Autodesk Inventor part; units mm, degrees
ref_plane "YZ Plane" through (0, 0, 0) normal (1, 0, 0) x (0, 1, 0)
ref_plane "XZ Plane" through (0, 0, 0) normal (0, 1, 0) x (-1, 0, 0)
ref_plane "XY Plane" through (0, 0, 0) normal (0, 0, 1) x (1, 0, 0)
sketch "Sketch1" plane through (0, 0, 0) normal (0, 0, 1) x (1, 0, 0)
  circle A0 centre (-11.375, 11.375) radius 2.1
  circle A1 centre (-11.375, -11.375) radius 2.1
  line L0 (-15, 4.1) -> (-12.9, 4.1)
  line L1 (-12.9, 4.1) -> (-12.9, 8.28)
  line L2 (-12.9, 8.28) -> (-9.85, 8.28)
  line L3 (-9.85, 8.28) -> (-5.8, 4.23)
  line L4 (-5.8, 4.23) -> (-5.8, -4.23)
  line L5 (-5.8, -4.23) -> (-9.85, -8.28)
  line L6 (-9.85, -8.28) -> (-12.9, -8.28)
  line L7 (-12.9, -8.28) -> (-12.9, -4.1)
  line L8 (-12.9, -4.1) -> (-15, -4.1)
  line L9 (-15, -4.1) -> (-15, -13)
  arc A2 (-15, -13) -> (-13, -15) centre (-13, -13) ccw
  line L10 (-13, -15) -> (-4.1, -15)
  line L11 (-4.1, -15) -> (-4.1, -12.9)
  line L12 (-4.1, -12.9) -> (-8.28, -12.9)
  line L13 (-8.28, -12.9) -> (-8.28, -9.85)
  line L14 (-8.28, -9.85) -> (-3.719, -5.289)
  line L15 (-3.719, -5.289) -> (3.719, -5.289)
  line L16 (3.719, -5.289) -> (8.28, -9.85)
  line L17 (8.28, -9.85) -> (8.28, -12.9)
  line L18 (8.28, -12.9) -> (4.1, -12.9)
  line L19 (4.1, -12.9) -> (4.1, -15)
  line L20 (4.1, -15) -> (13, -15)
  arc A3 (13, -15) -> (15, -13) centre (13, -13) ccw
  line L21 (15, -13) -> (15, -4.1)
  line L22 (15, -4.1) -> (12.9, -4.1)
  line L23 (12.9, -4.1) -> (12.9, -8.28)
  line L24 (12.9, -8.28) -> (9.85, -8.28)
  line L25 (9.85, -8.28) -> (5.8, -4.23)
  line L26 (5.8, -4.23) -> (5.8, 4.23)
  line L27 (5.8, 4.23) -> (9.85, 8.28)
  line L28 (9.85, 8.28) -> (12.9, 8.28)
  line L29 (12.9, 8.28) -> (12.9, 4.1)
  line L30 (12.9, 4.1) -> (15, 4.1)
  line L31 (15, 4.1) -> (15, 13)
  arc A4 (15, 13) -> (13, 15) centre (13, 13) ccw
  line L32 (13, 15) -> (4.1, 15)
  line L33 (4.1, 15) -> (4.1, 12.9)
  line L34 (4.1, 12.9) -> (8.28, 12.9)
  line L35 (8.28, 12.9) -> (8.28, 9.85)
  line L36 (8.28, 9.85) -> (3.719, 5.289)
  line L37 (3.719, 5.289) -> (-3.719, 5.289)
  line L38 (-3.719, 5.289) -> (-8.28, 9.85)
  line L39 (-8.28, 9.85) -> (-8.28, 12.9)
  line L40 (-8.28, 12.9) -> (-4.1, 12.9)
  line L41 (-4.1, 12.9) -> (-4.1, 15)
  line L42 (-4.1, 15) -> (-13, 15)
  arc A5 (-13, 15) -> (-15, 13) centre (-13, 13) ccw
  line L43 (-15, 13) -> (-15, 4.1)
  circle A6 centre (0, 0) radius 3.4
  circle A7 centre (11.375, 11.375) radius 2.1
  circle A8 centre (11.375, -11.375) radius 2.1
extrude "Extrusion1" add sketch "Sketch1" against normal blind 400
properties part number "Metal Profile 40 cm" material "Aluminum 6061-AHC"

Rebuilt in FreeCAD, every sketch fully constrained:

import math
import FreeCAD as App
import Part
import Sketcher
Q = App.Units.Quantity

doc = App.newDocument("Part")
body = doc.addObject("PartDesign::Body", "Body")

# Sketch on XY plane
sketch1 = doc.addObject("Sketcher::SketchObject", "Sketch")
body.addObject(sketch1)
sketch1.AttachmentSupport = (doc.XY_Plane, [""])
sketch1.MapMode = "FlatFace"
sketch1.addGeometry(Part.LineSegment(App.Vector(-15, 13, 0), App.Vector(-15, 4.1, 0)), False)
sketch1.addGeometry(Part.LineSegment(App.Vector(-15, 4.1, 0), App.Vector(-12.9, 4.1, 0)), False)
sketch1.addGeometry(Part.LineSegment(App.Vector(-12.9, 4.1, 0), App.Vector(-12.9, 8.28, 0)), False)
sketch1.addGeometry(Part.LineSegment(App.Vector(-12.9, 8.28, 0), App.Vector(-9.85, 8.28, 0)), False)
sketch1.addGeometry(Part.LineSegment(App.Vector(-9.85, 8.28, 0), App.Vector(-5.8, 4.23, 0)), False)
sketch1.addGeometry(Part.LineSegment(App.Vector(-5.8, 4.23, 0), App.Vector(-5.8, -4.23, 0)), False)
sketch1.addGeometry(Part.LineSegment(App.Vector(-5.8, -4.23, 0), App.Vector(-9.85, -8.28, 0)), False)
sketch1.addGeometry(Part.LineSegment(App.Vector(-9.85, -8.28, 0), App.Vector(-12.9, -8.28, 0)), False)
sketch1.addGeometry(Part.LineSegment(App.Vector(-12.9, -8.28, 0), App.Vector(-12.9, -4.1, 0)), False)
sketch1.addGeometry(Part.LineSegment(App.Vector(-12.9, -4.1, 0), App.Vector(-15, -4.1, 0)), False)
sketch1.addGeometry(Part.LineSegment(App.Vector(-15, -4.1, 0), App.Vector(-15, -13, 0)), False)
sketch1.addGeometry(Part.ArcOfCircle(Part.Circle(App.Vector(-13, -13, 0), App.Vector(0, 0, 1), 2), math.radians(180), math.radians(270)), False)
sketch1.addGeometry(Part.LineSegment(App.Vector(-13, -15, 0), App.Vector(-4.1, -15, 0)), False)
sketch1.addGeometry(Part.LineSegment(App.Vector(-4.1, -15, 0), App.Vector(-4.1, -12.9, 0)), False)
sketch1.addGeometry(Part.LineSegment(App.Vector(-4.1, -12.9, 0), App.Vector(-8.28, -12.9, 0)), False)
sketch1.addGeometry(Part.LineSegment(App.Vector(-8.28, -12.9, 0), App.Vector(-8.28, -9.85, 0)), False)
sketch1.addGeometry(Part.LineSegment(App.Vector(-8.28, -9.85, 0), App.Vector(-3.719, -5.289, 0)), False)
sketch1.addGeometry(Part.LineSegment(App.Vector(-3.719, -5.289, 0), App.Vector(3.719, -5.289, 0)), False)
sketch1.addGeometry(Part.LineSegment(App.Vector(3.719, -5.289, 0), App.Vector(8.28, -9.85, 0)), False)
sketch1.addGeometry(Part.LineSegment(App.Vector(8.28, -9.85, 0), App.Vector(8.28, -12.9, 0)), False)
sketch1.addGeometry(Part.LineSegment(App.Vector(8.28, -12.9, 0), App.Vector(4.1, -12.9, 0)), False)
sketch1.addGeometry(Part.LineSegment(App.Vector(4.1, -12.9, 0), App.Vector(4.1, -15, 0)), False)
sketch1.addGeometry(Part.LineSegment(App.Vector(4.1, -15, 0), App.Vector(13, -15, 0)), False)
sketch1.addGeometry(Part.ArcOfCircle(Part.Circle(App.Vector(13, -13, 0), App.Vector(0, 0, 1), 2), math.radians(-90), math.radians(0)), False)
sketch1.addGeometry(Part.LineSegment(App.Vector(15, -13, 0), App.Vector(15, -4.1, 0)), False)
sketch1.addGeometry(Part.LineSegment(App.Vector(15, -4.1, 0), App.Vector(12.9, -4.1, 0)), False)
sketch1.addGeometry(Part.LineSegment(App.Vector(12.9, -4.1, 0), App.Vector(12.9, -8.28, 0)), False)
sketch1.addGeometry(Part.LineSegment(App.Vector(12.9, -8.28, 0), App.Vector(9.85, -8.28, 0)), False)
sketch1.addGeometry(Part.LineSegment(App.Vector(9.85, -8.28, 0), App.Vector(5.8, -4.23, 0)), False)
sketch1.addGeometry(Part.LineSegment(App.Vector(5.8, -4.23, 0), App.Vector(5.8, 4.23, 0)), False)
sketch1.addGeometry(Part.LineSegment(App.Vector(5.8, 4.23, 0), App.Vector(9.85, 8.28, 0)), False)
sketch1.addGeometry(Part.LineSegment(App.Vector(9.85, 8.28, 0), App.Vector(12.9, 8.28, 0)), False)
sketch1.addGeometry(Part.LineSegment(App.Vector(12.9, 8.28, 0), App.Vector(12.9, 4.1, 0)), False)
sketch1.addGeometry(Part.LineSegment(App.Vector(12.9, 4.1, 0), App.Vector(15, 4.1, 0)), False)
sketch1.addGeometry(Part.LineSegment(App.Vector(15, 4.1, 0), App.Vector(15, 13, 0)), False)
sketch1.addGeometry(Part.ArcOfCircle(Part.Circle(App.Vector(13, 13, 0), App.Vector(0, 0, 1), 2), math.radians(0), math.radians(90)), False)
sketch1.addGeometry(Part.LineSegment(App.Vector(13, 15, 0), App.Vector(4.1, 15, 0)), False)
sketch1.addGeometry(Part.LineSegment(App.Vector(4.1, 15, 0), App.Vector(4.1, 12.9, 0)), False)
sketch1.addGeometry(Part.LineSegment(App.Vector(4.1, 12.9, 0), App.Vector(8.28, 12.9, 0)), False)
sketch1.addGeometry(Part.LineSegment(App.Vector(8.28, 12.9, 0), App.Vector(8.28, 9.85, 0)), False)
sketch1.addGeometry(Part.LineSegment(App.Vector(8.28, 9.85, 0), App.Vector(3.719, 5.289, 0)), False)
sketch1.addGeometry(Part.LineSegment(App.Vector(3.719, 5.289, 0), App.Vector(-3.719, 5.289, 0)), False)
sketch1.addGeometry(Part.LineSegment(App.Vector(-3.719, 5.289, 0), App.Vector(-8.28, 9.85, 0)), False)
sketch1.addGeometry(Part.LineSegment(App.Vector(-8.28, 9.85, 0), App.Vector(-8.28, 12.9, 0)), False)
sketch1.addGeometry(Part.LineSegment(App.Vector(-8.28, 12.9, 0), App.Vector(-4.1, 12.9, 0)), False)
sketch1.addGeometry(Part.LineSegment(App.Vector(-4.1, 12.9, 0), App.Vector(-4.1, 15, 0)), False)
sketch1.addGeometry(Part.LineSegment(App.Vector(-4.1, 15, 0), App.Vector(-13, 15, 0)), False)
sketch1.addGeometry(Part.ArcOfCircle(Part.Circle(App.Vector(-13, 13, 0), App.Vector(0, 0, 1), 2), math.radians(90), math.radians(180)), False)
sketch1.addGeometry(Part.Circle(App.Vector(-11.375, -11.375, 0), App.Vector(0, 0, 1), 2.1), False)
sketch1.addGeometry(Part.Circle(App.Vector(11.375, -11.375, 0), App.Vector(0, 0, 1), 2.1), False)
sketch1.addGeometry(Part.Circle(App.Vector(-11.375, 11.375, 0), App.Vector(0, 0, 1), 2.1), False)
sketch1.addGeometry(Part.Circle(App.Vector(0, 0, 0), App.Vector(0, 0, 1), 3.4), False)
sketch1.addGeometry(Part.Circle(App.Vector(11.375, 11.375, 0), App.Vector(0, 0, 1), 2.1), False)
sketch1.addConstraint(Sketcher.Constraint("Coincident", 0, 2, 1, 1))
sketch1.addConstraint(Sketcher.Constraint("Coincident", 1, 2, 2, 1))
sketch1.addConstraint(Sketcher.Constraint("Coincident", 2, 2, 3, 1))
sketch1.addConstraint(Sketcher.Constraint("Coincident", 3, 2, 4, 1))
sketch1.addConstraint(Sketcher.Constraint("Coincident", 4, 2, 5, 1))
sketch1.addConstraint(Sketcher.Constraint("Coincident", 5, 2, 6, 1))
sketch1.addConstraint(Sketcher.Constraint("Coincident", 6, 2, 7, 1))
sketch1.addConstraint(Sketcher.Constraint("Coincident", 7, 2, 8, 1))
sketch1.addConstraint(Sketcher.Constraint("Coincident", 8, 2, 9, 1))
sketch1.addConstraint(Sketcher.Constraint("Coincident", 9, 2, 10, 1))
sketch1.addConstraint(Sketcher.Constraint("Tangent", 10, 2, 11, 1))
sketch1.addConstraint(Sketcher.Constraint("Tangent", 11, 2, 12, 1))
sketch1.addConstraint(Sketcher.Constraint("Coincident", 12, 2, 13, 1))
sketch1.addConstraint(Sketcher.Constraint("Coincident", 13, 2, 14, 1))
sketch1.addConstraint(Sketcher.Constraint("Coincident", 14, 2, 15, 1))
sketch1.addConstraint(Sketcher.Constraint("Coincident", 15, 2, 16, 1))
sketch1.addConstraint(Sketcher.Constraint("Coincident", 16, 2, 17, 1))
sketch1.addConstraint(Sketcher.Constraint("Coincident", 17, 2, 18, 1))
sketch1.addConstraint(Sketcher.Constraint("Coincident", 18, 2, 19, 1))
sketch1.addConstraint(Sketcher.Constraint("Coincident", 19, 2, 20, 1))
sketch1.addConstraint(Sketcher.Constraint("Coincident", 20, 2, 21, 1))
sketch1.addConstraint(Sketcher.Constraint("Coincident", 21, 2, 22, 1))
sketch1.addConstraint(Sketcher.Constraint("Tangent", 22, 2, 23, 1))
sketch1.addConstraint(Sketcher.Constraint("Tangent", 23, 2, 24, 1))
sketch1.addConstraint(Sketcher.Constraint("Coincident", 24, 2, 25, 1))
sketch1.addConstraint(Sketcher.Constraint("Coincident", 25, 2, 26, 1))
sketch1.addConstraint(Sketcher.Constraint("Coincident", 26, 2, 27, 1))
sketch1.addConstraint(Sketcher.Constraint("Coincident", 27, 2, 28, 1))
sketch1.addConstraint(Sketcher.Constraint("Coincident", 28, 2, 29, 1))
sketch1.addConstraint(Sketcher.Constraint("Coincident", 29, 2, 30, 1))
sketch1.addConstraint(Sketcher.Constraint("Coincident", 30, 2, 31, 1))
sketch1.addConstraint(Sketcher.Constraint("Coincident", 31, 2, 32, 1))
sketch1.addConstraint(Sketcher.Constraint("Coincident", 32, 2, 33, 1))
sketch1.addConstraint(Sketcher.Constraint("Coincident", 33, 2, 34, 1))
sketch1.addConstraint(Sketcher.Constraint("Tangent", 34, 2, 35, 1))
sketch1.addConstraint(Sketcher.Constraint("Tangent", 35, 2, 36, 1))
sketch1.addConstraint(Sketcher.Constraint("Coincident", 36, 2, 37, 1))
sketch1.addConstraint(Sketcher.Constraint("Coincident", 37, 2, 38, 1))
sketch1.addConstraint(Sketcher.Constraint("Coincident", 38, 2, 39, 1))
sketch1.addConstraint(Sketcher.Constraint("Coincident", 39, 2, 40, 1))
sketch1.addConstraint(Sketcher.Constraint("Coincident", 40, 2, 41, 1))
sketch1.addConstraint(Sketcher.Constraint("Coincident", 41, 2, 42, 1))
sketch1.addConstraint(Sketcher.Constraint("Coincident", 42, 2, 43, 1))
sketch1.addConstraint(Sketcher.Constraint("Coincident", 43, 2, 44, 1))
sketch1.addConstraint(Sketcher.Constraint("Coincident", 44, 2, 45, 1))
sketch1.addConstraint(Sketcher.Constraint("Coincident", 45, 2, 46, 1))
sketch1.addConstraint(Sketcher.Constraint("Tangent", 46, 2, 47, 1))
sketch1.addConstraint(Sketcher.Constraint("Tangent", 47, 2, 0, 1))
sketch1.addConstraint(Sketcher.Constraint("Vertical", 0))
sketch1.addConstraint(Sketcher.Constraint("Horizontal", 1))
sketch1.addConstraint(Sketcher.Constraint("Vertical", 2))
sketch1.addConstraint(Sketcher.Constraint("Horizontal", 3))
sketch1.addConstraint(Sketcher.Constraint("Vertical", 5))
sketch1.addConstraint(Sketcher.Constraint("Horizontal", 7))
sketch1.addConstraint(Sketcher.Constraint("Vertical", 8))
sketch1.addConstraint(Sketcher.Constraint("Horizontal", 9))
sketch1.addConstraint(Sketcher.Constraint("Vertical", 10))
sketch1.addConstraint(Sketcher.Constraint("Horizontal", 12))
sketch1.addConstraint(Sketcher.Constraint("Vertical", 13))
sketch1.addConstraint(Sketcher.Constraint("Horizontal", 14))
sketch1.addConstraint(Sketcher.Constraint("Vertical", 15))
sketch1.addConstraint(Sketcher.Constraint("Horizontal", 17))
sketch1.addConstraint(Sketcher.Constraint("Vertical", 19))
sketch1.addConstraint(Sketcher.Constraint("Horizontal", 20))
sketch1.addConstraint(Sketcher.Constraint("Vertical", 21))
sketch1.addConstraint(Sketcher.Constraint("Horizontal", 22))
sketch1.addConstraint(Sketcher.Constraint("Vertical", 24))
sketch1.addConstraint(Sketcher.Constraint("Horizontal", 25))
sketch1.addConstraint(Sketcher.Constraint("Vertical", 26))
sketch1.addConstraint(Sketcher.Constraint("Horizontal", 27))
sketch1.addConstraint(Sketcher.Constraint("Vertical", 29))
sketch1.addConstraint(Sketcher.Constraint("Horizontal", 31))
sketch1.addConstraint(Sketcher.Constraint("Vertical", 32))
sketch1.addConstraint(Sketcher.Constraint("Horizontal", 33))
sketch1.addConstraint(Sketcher.Constraint("Vertical", 34))
sketch1.addConstraint(Sketcher.Constraint("Horizontal", 36))
sketch1.addConstraint(Sketcher.Constraint("Vertical", 37))
sketch1.addConstraint(Sketcher.Constraint("Horizontal", 38))
sketch1.addConstraint(Sketcher.Constraint("Vertical", 39))
sketch1.addConstraint(Sketcher.Constraint("Horizontal", 41))
sketch1.addConstraint(Sketcher.Constraint("Vertical", 43))
sketch1.addConstraint(Sketcher.Constraint("Horizontal", 44))
sketch1.addConstraint(Sketcher.Constraint("Vertical", 45))
sketch1.addConstraint(Sketcher.Constraint("Horizontal", 46))
sketch1.addConstraint(Sketcher.Constraint("Coincident", 51, 3, -1, 1))
sketch1.addConstraint(Sketcher.Constraint("Equal", 11, 23))
sketch1.addConstraint(Sketcher.Constraint("Equal", 23, 35))
sketch1.addConstraint(Sketcher.Constraint("Equal", 35, 47))
sketch1.addConstraint(Sketcher.Constraint("Equal", 48, 49))
sketch1.addConstraint(Sketcher.Constraint("Equal", 49, 50))
sketch1.addConstraint(Sketcher.Constraint("Equal", 50, 52))
sketch1.addConstraint(Sketcher.Constraint("Symmetric", 11, 3, 35, 3, -1, 1))
sketch1.addConstraint(Sketcher.Constraint("Symmetric", 23, 3, 47, 3, -1, 1))
sketch1.addConstraint(Sketcher.Constraint("Symmetric", 49, 3, 50, 3, -1, 1))
sketch1.addConstraint(Sketcher.Constraint("Symmetric", 48, 3, 52, 3, -1, 1))
sketch1.addConstraint(Sketcher.Constraint("Symmetric", 1, 2, 25, 2, -1, 1))
sketch1.addConstraint(Sketcher.Constraint("Symmetric", 3, 2, 27, 2, -1, 1))
sketch1.addConstraint(Sketcher.Constraint("Symmetric", 4, 2, 28, 2, -1, 1))
sketch1.addConstraint(Sketcher.Constraint("Symmetric", 6, 2, 30, 2, -1, 1))
sketch1.addConstraint(Sketcher.Constraint("Symmetric", 8, 2, 32, 2, -1, 1))
sketch1.addConstraint(Sketcher.Constraint("Symmetric", 13, 2, 37, 2, -1, 1))
sketch1.addConstraint(Sketcher.Constraint("Symmetric", 15, 2, 39, 2, -1, 1))
sketch1.addConstraint(Sketcher.Constraint("Symmetric", 16, 2, 40, 2, -1, 1))
sketch1.addConstraint(Sketcher.Constraint("Symmetric", 18, 2, 42, 2, -1, 1))
sketch1.addConstraint(Sketcher.Constraint("Symmetric", 20, 2, 44, 2, -1, 1))
sketch1.addConstraint(Sketcher.Constraint("Symmetric", 11, 3, 23, 3, -2))
sketch1.addConstraint(Sketcher.Constraint("Symmetric", 48, 3, 49, 3, -2))
sketch1.addConstraint(Sketcher.Constraint("Symmetric", 15, 2, 18, 2, -2))
sketch1.addConstraint(Sketcher.Constraint("Symmetric", 13, 2, 20, 2, -2))
sketch1.addConstraint(Sketcher.Constraint("Symmetric", 8, 2, 25, 2, -2))
sketch1.addConstraint(Sketcher.Constraint("Symmetric", 6, 2, 27, 2, -2))
sketch1.addConstraint(Sketcher.Constraint("Perpendicular", 4, 6))
sketch1.addConstraint(Sketcher.Constraint("Parallel", 6, 16))
sketch1.addConstraint(Sketcher.Constraint("Perpendicular", 16, 18))
sketch1.addConstraint(Sketcher.Constraint("Perpendicular", 28, 30))
sketch1.addConstraint(Sketcher.Constraint("Perpendicular", 40, 42))
sketch1.addConstraint(Sketcher.Constraint("Horizontal", 5, 2, 28, 2))
sketch1.addConstraint(Sketcher.Constraint("Equal", 46, 0))
sketch1.addConstraint(Sketcher.Constraint("Equal", 44, 2))
sketch1.addConstraint(Sketcher.Constraint("Equal", 33, 13))
sketch1.addConstraint(Sketcher.Constraint("Equal", 31, 15))
sketch1.addConstraint(Sketcher.Constraint("Radius", 11, Q("2 mm")))
sketch1.addConstraint(Sketcher.Constraint("Diameter", 48, Q("4.2 mm")))
sketch1.addConstraint(Sketcher.Constraint("Diameter", 51, Q("6.8 mm")))
sketch1.addConstraint(Sketcher.Constraint("DistanceX", 1, 1, 1, 2, Q("2.1 mm")))
sketch1.addConstraint(Sketcher.Constraint("DistanceX", 12, 1, 12, 2, Q("8.9 mm")))
sketch1.addConstraint(Sketcher.Constraint("DistanceX", 11, 3, -1, 1, Q("13 mm")))
sketch1.addConstraint(Sketcher.Constraint("DistanceY", 11, 3, -1, 1, Q("13 mm")))
sketch1.addConstraint(Sketcher.Constraint("DistanceX", 3, 1, 3, 2, Q("3.05 mm")))
sketch1.addConstraint(Sketcher.Constraint("DistanceX", 14, 2, 14, 1, Q("4.18 mm")))
sketch1.addConstraint(Sketcher.Constraint("DistanceY", 5, 2, 5, 1, Q("8.46 mm")))
sketch1.addConstraint(Sketcher.Constraint("DistanceX", 17, 1, 17, 2, Q("7.438 mm")))
sketch1.addConstraint(Sketcher.Constraint("DistanceX", 48, 3, 49, 3, Q("22.75 mm")))
sketch1.addConstraint(Sketcher.Constraint("DistanceY", 48, 3, 50, 3, Q("22.75 mm")))
pad1 = doc.addObject("PartDesign::Pad", "Pad")
body.addObject(pad1)
pad1.Profile = sketch1
pad1.Length = 400
pad1.Reversed = True

doc.recompute()
